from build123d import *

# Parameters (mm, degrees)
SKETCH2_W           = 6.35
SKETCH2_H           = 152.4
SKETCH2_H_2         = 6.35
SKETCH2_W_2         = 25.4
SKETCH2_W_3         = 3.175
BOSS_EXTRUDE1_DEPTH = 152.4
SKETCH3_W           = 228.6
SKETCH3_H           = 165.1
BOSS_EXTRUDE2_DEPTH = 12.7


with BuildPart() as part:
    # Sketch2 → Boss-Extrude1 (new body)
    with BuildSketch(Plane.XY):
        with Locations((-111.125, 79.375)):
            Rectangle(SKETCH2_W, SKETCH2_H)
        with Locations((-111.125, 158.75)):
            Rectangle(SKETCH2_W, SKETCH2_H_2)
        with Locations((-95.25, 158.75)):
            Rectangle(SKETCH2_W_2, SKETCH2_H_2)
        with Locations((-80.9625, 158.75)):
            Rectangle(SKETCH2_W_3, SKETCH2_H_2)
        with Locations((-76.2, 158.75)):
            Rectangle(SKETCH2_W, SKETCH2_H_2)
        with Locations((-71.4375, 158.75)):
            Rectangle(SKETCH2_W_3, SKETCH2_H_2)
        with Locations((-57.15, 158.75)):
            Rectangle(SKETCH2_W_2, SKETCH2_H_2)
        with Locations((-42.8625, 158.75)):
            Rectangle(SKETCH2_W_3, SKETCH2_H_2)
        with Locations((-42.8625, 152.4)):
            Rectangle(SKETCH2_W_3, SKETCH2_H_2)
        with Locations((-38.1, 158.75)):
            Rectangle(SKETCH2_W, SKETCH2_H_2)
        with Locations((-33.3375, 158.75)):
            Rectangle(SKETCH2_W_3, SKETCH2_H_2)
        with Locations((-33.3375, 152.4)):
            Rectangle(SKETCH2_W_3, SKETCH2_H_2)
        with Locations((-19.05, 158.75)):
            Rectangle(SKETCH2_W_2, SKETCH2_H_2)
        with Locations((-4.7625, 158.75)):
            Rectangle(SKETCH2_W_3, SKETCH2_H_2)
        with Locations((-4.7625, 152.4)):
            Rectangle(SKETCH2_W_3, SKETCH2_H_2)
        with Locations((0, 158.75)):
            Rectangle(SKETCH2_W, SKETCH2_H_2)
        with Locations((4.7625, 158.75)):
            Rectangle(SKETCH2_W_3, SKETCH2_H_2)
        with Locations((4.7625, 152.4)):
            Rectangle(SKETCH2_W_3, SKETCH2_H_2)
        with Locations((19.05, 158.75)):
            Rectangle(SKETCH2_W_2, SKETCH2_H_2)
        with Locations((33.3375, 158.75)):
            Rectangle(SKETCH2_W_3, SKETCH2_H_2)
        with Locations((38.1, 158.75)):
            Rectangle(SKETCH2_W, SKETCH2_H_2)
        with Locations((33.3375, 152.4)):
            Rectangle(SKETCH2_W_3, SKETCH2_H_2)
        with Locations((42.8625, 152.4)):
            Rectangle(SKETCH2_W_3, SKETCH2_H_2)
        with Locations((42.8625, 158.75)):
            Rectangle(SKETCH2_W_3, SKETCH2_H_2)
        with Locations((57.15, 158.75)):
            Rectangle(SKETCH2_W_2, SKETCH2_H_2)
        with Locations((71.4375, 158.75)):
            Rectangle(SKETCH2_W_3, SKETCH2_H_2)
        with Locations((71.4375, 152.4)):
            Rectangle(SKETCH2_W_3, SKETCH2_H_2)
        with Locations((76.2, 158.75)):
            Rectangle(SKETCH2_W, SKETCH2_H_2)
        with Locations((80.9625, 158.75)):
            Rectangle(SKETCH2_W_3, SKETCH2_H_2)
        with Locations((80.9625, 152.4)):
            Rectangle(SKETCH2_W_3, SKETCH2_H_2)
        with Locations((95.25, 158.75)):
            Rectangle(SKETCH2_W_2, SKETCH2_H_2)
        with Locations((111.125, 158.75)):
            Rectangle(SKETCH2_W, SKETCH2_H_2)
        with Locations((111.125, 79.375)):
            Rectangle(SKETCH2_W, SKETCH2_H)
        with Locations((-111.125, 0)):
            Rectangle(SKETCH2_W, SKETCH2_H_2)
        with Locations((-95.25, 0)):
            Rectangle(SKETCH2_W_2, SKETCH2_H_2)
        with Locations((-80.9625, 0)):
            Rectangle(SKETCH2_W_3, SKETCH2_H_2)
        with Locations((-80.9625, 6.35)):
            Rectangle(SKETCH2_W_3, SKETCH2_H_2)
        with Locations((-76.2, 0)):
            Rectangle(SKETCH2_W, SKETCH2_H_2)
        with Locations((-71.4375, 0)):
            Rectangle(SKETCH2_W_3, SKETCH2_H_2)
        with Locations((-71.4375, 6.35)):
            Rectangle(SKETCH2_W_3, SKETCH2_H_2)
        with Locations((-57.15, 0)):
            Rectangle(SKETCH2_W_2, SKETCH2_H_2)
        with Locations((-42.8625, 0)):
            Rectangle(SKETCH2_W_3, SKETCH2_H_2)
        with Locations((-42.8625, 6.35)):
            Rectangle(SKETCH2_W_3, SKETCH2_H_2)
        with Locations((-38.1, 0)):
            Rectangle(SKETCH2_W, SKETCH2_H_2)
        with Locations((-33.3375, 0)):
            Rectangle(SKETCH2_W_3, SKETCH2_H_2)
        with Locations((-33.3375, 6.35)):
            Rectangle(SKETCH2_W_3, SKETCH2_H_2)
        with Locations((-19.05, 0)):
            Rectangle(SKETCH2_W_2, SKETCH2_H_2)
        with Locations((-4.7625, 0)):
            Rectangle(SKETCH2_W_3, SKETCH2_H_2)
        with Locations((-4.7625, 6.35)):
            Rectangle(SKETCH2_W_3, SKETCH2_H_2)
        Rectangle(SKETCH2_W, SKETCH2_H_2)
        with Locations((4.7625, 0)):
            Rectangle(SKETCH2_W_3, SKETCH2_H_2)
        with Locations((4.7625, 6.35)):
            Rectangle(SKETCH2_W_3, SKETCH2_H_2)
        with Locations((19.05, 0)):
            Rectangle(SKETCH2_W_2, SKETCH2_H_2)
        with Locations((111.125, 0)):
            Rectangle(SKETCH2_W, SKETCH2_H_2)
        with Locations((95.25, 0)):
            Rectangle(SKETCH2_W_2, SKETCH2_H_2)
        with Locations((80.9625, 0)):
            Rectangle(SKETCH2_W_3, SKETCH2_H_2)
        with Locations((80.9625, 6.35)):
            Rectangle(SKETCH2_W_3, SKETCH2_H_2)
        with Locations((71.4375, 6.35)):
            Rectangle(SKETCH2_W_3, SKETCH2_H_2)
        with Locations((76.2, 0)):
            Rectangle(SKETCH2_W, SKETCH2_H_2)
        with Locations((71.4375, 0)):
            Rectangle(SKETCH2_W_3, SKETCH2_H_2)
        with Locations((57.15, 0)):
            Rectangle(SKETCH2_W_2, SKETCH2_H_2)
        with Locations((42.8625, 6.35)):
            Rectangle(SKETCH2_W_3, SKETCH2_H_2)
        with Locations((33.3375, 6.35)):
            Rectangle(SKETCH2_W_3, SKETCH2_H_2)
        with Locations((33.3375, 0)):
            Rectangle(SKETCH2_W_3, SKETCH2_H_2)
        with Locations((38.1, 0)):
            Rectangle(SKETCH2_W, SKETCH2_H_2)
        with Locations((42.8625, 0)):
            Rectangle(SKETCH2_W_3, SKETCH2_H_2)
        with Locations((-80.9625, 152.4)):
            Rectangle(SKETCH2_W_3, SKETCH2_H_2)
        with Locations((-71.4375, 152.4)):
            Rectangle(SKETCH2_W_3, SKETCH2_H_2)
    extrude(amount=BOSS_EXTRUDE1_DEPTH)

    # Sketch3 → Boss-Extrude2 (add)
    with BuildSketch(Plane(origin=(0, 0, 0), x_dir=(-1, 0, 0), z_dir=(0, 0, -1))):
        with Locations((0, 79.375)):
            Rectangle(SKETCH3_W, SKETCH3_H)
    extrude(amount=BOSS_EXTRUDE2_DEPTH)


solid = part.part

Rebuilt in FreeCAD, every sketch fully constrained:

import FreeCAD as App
import Part
import Sketcher
from FreeCAD import Vector
Q = App.Units.Quantity


def add_polygon(sketch, points):
    """Adds a closed chain of lines whose ends are joined by coincident constraints."""
    first, n = sketch.GeometryCount, len(points)
    for a, b in zip(points, points[1:] + points[:1]):
        sketch.addGeometry(Part.LineSegment(App.Vector(*a, 0), App.Vector(*b, 0)), False)
    for i in range(n):
        sketch.addConstraint(Sketcher.Constraint("Coincident", first + i, 2, first + (i + 1) % n, 1))

doc = App.newDocument("Part")
body = doc.addObject("PartDesign::Body", "Body")

sketch1 = body.newObject("Sketcher::SketchObject", "Sketch")
sketch1.AttachmentSupport = (doc.getObject("XY_Plane"), [""])
sketch1.MapMode = "FlatFace"
add_polygon(sketch1, [(114.3, -3.175), (114.3, 161.925), (-114.3, 161.925), (-114.3, -3.175)])
add_polygon(sketch1, [(-107.95, 155.575), (-82.55, 155.575), (-82.55, 149.225), (-79.375, 149.225), (-79.375, 155.575), (-73.025, 155.575), (-73.025, 149.225), (-69.85, 149.225), (-69.85, 155.575), (-44.45, 155.575), (-44.45, 149.225), (-41.275, 149.225), (-41.275, 155.575), (-34.925, 155.575), (-34.925, 149.225), (-31.75, 149.225), (-31.75, 155.575), (-6.35, 155.575), (-6.35, 149.225), (-3.175, 149.225), (-3.175, 155.575), (3.175, 155.575), (3.175, 149.225), (6.35, 149.225), (6.35, 155.575), (31.75, 155.575), (31.75, 149.225), (34.925, 149.225), (34.925, 155.575), (41.275, 155.575), (41.275, 149.225), (44.45, 149.225), (44.45, 155.575), (69.85, 155.575), (69.85, 149.225), (73.025, 149.225), (73.025, 155.575), (79.375, 155.575), (79.375, 149.225), (82.55, 149.225), (82.55, 155.575), (107.95, 155.575), (107.95, 3.175), (82.55, 3.175), (82.55, 9.525), (79.375, 9.525), (79.375, 3.175), (73.025, 3.175), (73.025, 9.525), (69.85, 9.525), (69.85, 3.175), (44.45, 3.175), (44.45, 9.525), (41.275, 9.525), (41.275, 3.175), (34.925, 3.175), (34.925, 9.525), (31.75, 9.525), (31.75, 3.175), (6.35, 3.175), (6.35, 9.525), (3.175, 9.525), (3.175, 3.175), (-3.175, 3.175), (-3.175, 9.525), (-6.35, 9.525), (-6.35, 3.175), (-31.75, 3.175), (-31.75, 9.525), (-34.925, 9.525), (-34.925, 3.175), (-41.275, 3.175), (-41.275, 9.525), (-44.45, 9.525), (-44.45, 3.175), (-69.85, 3.175), (-69.85, 9.525), (-73.025, 9.525), (-73.025, 3.175), (-79.375, 3.175), (-79.375, 9.525), (-82.55, 9.525), (-82.55, 3.175), (-107.95, 3.175)])
sketch1.addConstraint([
    Sketcher.Constraint("Vertical", 0),
    Sketcher.Constraint("Horizontal", 1),
    Sketcher.Constraint("Vertical", 2),
    Sketcher.Constraint("Horizontal", 3),
    Sketcher.Constraint("Horizontal", 4),
    Sketcher.Constraint("Vertical", 5),
    Sketcher.Constraint("Horizontal", 6),
    Sketcher.Constraint("Vertical", 7),
    Sketcher.Constraint("Horizontal", 8),
    Sketcher.Constraint("Vertical", 9),
    Sketcher.Constraint("Horizontal", 10),
    Sketcher.Constraint("Vertical", 11),
    Sketcher.Constraint("Horizontal", 12),
    Sketcher.Constraint("Vertical", 13),
    Sketcher.Constraint("Horizontal", 14),
    Sketcher.Constraint("Vertical", 15),
    Sketcher.Constraint("Horizontal", 16),
    Sketcher.Constraint("Vertical", 17),
    Sketcher.Constraint("Horizontal", 18),
    Sketcher.Constraint("Vertical", 19),
    Sketcher.Constraint("Horizontal", 20),
    Sketcher.Constraint("Vertical", 21),
    Sketcher.Constraint("Horizontal", 22),
    Sketcher.Constraint("Vertical", 23),
    Sketcher.Constraint("Horizontal", 24),
    Sketcher.Constraint("Vertical", 25),
    Sketcher.Constraint("Horizontal", 26),
    Sketcher.Constraint("Vertical", 27),
    Sketcher.Constraint("Horizontal", 28),
    Sketcher.Constraint("Vertical", 29),
    Sketcher.Constraint("Horizontal", 30),
    Sketcher.Constraint("Vertical", 31),
    Sketcher.Constraint("Horizontal", 32),
    Sketcher.Constraint("Vertical", 33),
    Sketcher.Constraint("Horizontal", 34),
    Sketcher.Constraint("Vertical", 35),
    Sketcher.Constraint("Horizontal", 36),
    Sketcher.Constraint("Vertical", 37),
    Sketcher.Constraint("Horizontal", 38),
    Sketcher.Constraint("Vertical", 39),
    Sketcher.Constraint("Horizontal", 40),
    Sketcher.Constraint("Vertical", 41),
    Sketcher.Constraint("Horizontal", 42),
    Sketcher.Constraint("Vertical", 43),
    Sketcher.Constraint("Horizontal", 44),
    Sketcher.Constraint("Vertical", 45),
    Sketcher.Constraint("Horizontal", 46),
    Sketcher.Constraint("Vertical", 47),
    Sketcher.Constraint("Horizontal", 48),
    Sketcher.Constraint("Vertical", 49),
    Sketcher.Constraint("Horizontal", 50),
    Sketcher.Constraint("Vertical", 51),
    Sketcher.Constraint("Horizontal", 52),
    Sketcher.Constraint("Vertical", 53),
    Sketcher.Constraint("Horizontal", 54),
    Sketcher.Constraint("Vertical", 55),
    Sketcher.Constraint("Horizontal", 56),
    Sketcher.Constraint("Vertical", 57),
    Sketcher.Constraint("Horizontal", 58),
    Sketcher.Constraint("Vertical", 59),
    Sketcher.Constraint("Horizontal", 60),
    Sketcher.Constraint("Vertical", 61),
    Sketcher.Constraint("Horizontal", 62),
    Sketcher.Constraint("Vertical", 63),
    Sketcher.Constraint("Horizontal", 64),
    Sketcher.Constraint("Vertical", 65),
    Sketcher.Constraint("Horizontal", 66),
    Sketcher.Constraint("Vertical", 67),
    Sketcher.Constraint("Horizontal", 68),
    Sketcher.Constraint("Vertical", 69),
    Sketcher.Constraint("Horizontal", 70),
    Sketcher.Constraint("Vertical", 71),
    Sketcher.Constraint("Horizontal", 72),
    Sketcher.Constraint("Vertical", 73),
    Sketcher.Constraint("Horizontal", 74),
    Sketcher.Constraint("Vertical", 75),
    Sketcher.Constraint("Horizontal", 76),
    Sketcher.Constraint("Vertical", 77),
    Sketcher.Constraint("Horizontal", 78),
    Sketcher.Constraint("Vertical", 79),
    Sketcher.Constraint("Horizontal", 80),
    Sketcher.Constraint("Vertical", 81),
    Sketcher.Constraint("Horizontal", 82),
    Sketcher.Constraint("Vertical", 83),
    Sketcher.Constraint("Horizontal", 84),
    Sketcher.Constraint("Vertical", 85),
    Sketcher.Constraint("Horizontal", 86),
    Sketcher.Constraint("Vertical", 87),
    Sketcher.Constraint("Symmetric", 22, 2, 25, 2, -2),
    Sketcher.Constraint("Symmetric", 20, 2, 27, 2, -2),
    Sketcher.Constraint("Symmetric", 18, 2, 29, 2, -2),
    Sketcher.Constraint("Symmetric", 16, 2, 31, 2, -2),
    Sketcher.Constraint("Symmetric", 14, 2, 33, 2, -2),
    Sketcher.Constraint("Symmetric", 12, 2, 35, 2, -2),
    Sketcher.Constraint("Symmetric", 10, 2, 37, 2, -2),
    Sketcher.Constraint("Symmetric", 8, 2, 39, 2, -2),
    Sketcher.Constraint("Symmetric", 6, 2, 41, 2, -2),
    Sketcher.Constraint("Symmetric", 4, 2, 43, 2, -2),
    Sketcher.Constraint("Symmetric", 64, 2, 67, 2, -2),
    Sketcher.Constraint("Symmetric", 62, 2, 69, 2, -2),
    Sketcher.Constraint("Symmetric", 60, 2, 71, 2, -2),
    Sketcher.Constraint("Symmetric", 58, 2, 73, 2, -2),
    Sketcher.Constraint("Symmetric", 56, 2, 75, 2, -2),
    Sketcher.Constraint("Symmetric", 54, 2, 77, 2, -2),
    Sketcher.Constraint("Symmetric", 52, 2, 79, 2, -2),
    Sketcher.Constraint("Symmetric", 50, 2, 81, 2, -2),
    Sketcher.Constraint("Symmetric", 48, 2, 83, 2, -2),
    Sketcher.Constraint("Symmetric", 46, 2, 85, 2, -2),
    Sketcher.Constraint("Horizontal", 4, 2, 7, 2),
    Sketcher.Constraint("Horizontal", 6, 2, 9, 2),
    Sketcher.Constraint("Horizontal", 8, 2, 11, 2),
    Sketcher.Constraint("Horizontal", 10, 2, 13, 2),
    Sketcher.Constraint("Horizontal", 12, 2, 15, 2),
    Sketcher.Constraint("Horizontal", 14, 2, 17, 2),
    Sketcher.Constraint("Horizontal", 16, 2, 19, 2),
    Sketcher.Constraint("Horizontal", 18, 2, 21, 2),
    Sketcher.Constraint("Horizontal", 20, 2, 23, 2),
    Sketcher.Constraint("Horizontal", 46, 2, 49, 2),
    Sketcher.Constraint("Horizontal", 48, 2, 51, 2),
    Sketcher.Constraint("Horizontal", 50, 2, 53, 2),
    Sketcher.Constraint("Horizontal", 52, 2, 55, 2),
    Sketcher.Constraint("Horizontal", 54, 2, 57, 2),
    Sketcher.Constraint("Horizontal", 56, 2, 59, 2),
    Sketcher.Constraint("Horizontal", 58, 2, 61, 2),
    Sketcher.Constraint("Horizontal", 60, 2, 63, 2),
    Sketcher.Constraint("Horizontal", 62, 2, 65, 2),
    Sketcher.Constraint("Vertical", 43, 2, 46, 2),
    Sketcher.Constraint("Vertical", 41, 2, 48, 2),
    Sketcher.Constraint("Vertical", 39, 2, 50, 2),
    Sketcher.Constraint("Vertical", 37, 2, 52, 2),
    Sketcher.Constraint("Vertical", 35, 2, 54, 2),
    Sketcher.Constraint("Vertical", 33, 2, 56, 2),
    Sketcher.Constraint("Vertical", 31, 2, 58, 2),
    Sketcher.Constraint("Vertical", 29, 2, 60, 2),
    Sketcher.Constraint("Vertical", 27, 2, 62, 2),
    Sketcher.Constraint("Vertical", 25, 2, 64, 2),
    Sketcher.Constraint("Equal", 6, 10),
    Sketcher.Constraint("Equal", 4, 12),
    Sketcher.Constraint("Equal", 10, 14),
    Sketcher.Constraint("Equal", 8, 16),
    Sketcher.Constraint("Equal", 14, 18),
    Sketcher.Constraint("Equal", 12, 20),
    Sketcher.Constraint("Equal", 18, 22),
    Sketcher.Constraint("Equal", 16, 24),
    Sketcher.Constraint("Equal", 36, 44),
    Sketcher.Constraint("Equal", 82, 5),
    Sketcher.Constraint("Equal", 43, 47),
    Sketcher.Constraint("DistanceX", 1, 2, 1, 1, Q("9 in")),
    Sketcher.Constraint("DistanceX", 4, 1, 4, 2, Q("1 in")),
    Sketcher.Constraint("DistanceY", 45, 2, 45, 1, Q("6 in")),
    Sketcher.Constraint("DistanceY", 0, 1, 0, 2, Q("6.5 in")),
    Sketcher.Constraint("DistanceX", 8, 1, 8, 2, Q("0.25 in")),
    Sketcher.Constraint("DistanceX", -1, 1, 0, 2, Q("4.5 in")),
    Sketcher.Constraint("DistanceX", 6, 1, 6, 2, Q("0.125 in")),
    Sketcher.Constraint("DistanceY", -1, 1, 0, 2, Q("6.375 in")),
    Sketcher.Constraint("DistanceY", -1, 1, 4, 2, Q("6.125 in")),
])
pad1 = body.newObject("PartDesign::Pad", "Pad")
pad1.Profile = sketch1
pad1.Length = Q("6 in")

sketch2 = body.newObject("Sketcher::SketchObject", "Sketch001")
sketch2.AttachmentSupport = (doc.getObject("XY_Plane"), [""])
sketch2.MapMode = "FlatFace"
add_polygon(sketch2, [(114.3, 161.925), (114.3, -3.175), (-114.3, -3.175), (-114.3, 161.925)])
sketch2.addConstraint([
    Sketcher.Constraint("Vertical", 0),
    Sketcher.Constraint("Horizontal", 1),
    Sketcher.Constraint("Vertical", 2),
    Sketcher.Constraint("Horizontal", 3),
    Sketcher.Constraint("DistanceX", 1, 2, 1, 1, Q("9 in")),
    Sketcher.Constraint("DistanceY", 0, 2, 0, 1, Q("6.5 in")),
    Sketcher.Constraint("DistanceX", -1, 1, 0, 2, Q("4.5 in")),
    Sketcher.Constraint("DistanceY", 0, 2, -1, 1, Q("0.125 in")),
])
pad2 = body.newObject("PartDesign::Pad", "Pad001")
pad2.Profile = sketch2
pad2.Length = Q("0.5 in")
pad2.Reversed = True

doc.recompute()
